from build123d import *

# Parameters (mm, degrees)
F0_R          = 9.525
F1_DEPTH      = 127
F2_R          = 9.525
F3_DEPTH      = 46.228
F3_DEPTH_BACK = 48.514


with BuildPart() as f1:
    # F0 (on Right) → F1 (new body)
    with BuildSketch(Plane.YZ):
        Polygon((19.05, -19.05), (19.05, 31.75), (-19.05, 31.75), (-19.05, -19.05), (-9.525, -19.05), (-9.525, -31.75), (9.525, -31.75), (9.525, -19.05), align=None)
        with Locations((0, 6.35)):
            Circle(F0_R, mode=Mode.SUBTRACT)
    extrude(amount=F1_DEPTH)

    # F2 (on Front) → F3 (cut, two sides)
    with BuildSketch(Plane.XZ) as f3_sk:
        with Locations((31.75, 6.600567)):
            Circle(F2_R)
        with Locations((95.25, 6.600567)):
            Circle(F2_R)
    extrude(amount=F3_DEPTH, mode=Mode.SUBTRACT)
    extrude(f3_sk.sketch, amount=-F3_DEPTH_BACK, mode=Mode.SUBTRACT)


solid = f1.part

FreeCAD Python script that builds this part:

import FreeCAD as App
import Part
import Sketcher
Q = App.Units.Quantity


def add_polygon(sketch, points):
    """Adds a closed chain of lines whose ends are joined by coincident constraints."""
    first, n = sketch.GeometryCount, len(points)
    for a, b in zip(points, points[1:] + points[:1]):
        sketch.addGeometry(Part.LineSegment(App.Vector(*a, 0), App.Vector(*b, 0)), False)
    for i in range(n):
        sketch.addConstraint(Sketcher.Constraint("Coincident", first + i, 2, first + (i + 1) % n, 1))

doc = App.newDocument("Part")
params = doc.addObject("Spreadsheet::Sheet", "Params")
for row, (alias, value) in enumerate([
    ("sketch1_diameter", "0.75 in"),
    ("sketch1_height", "2 in"),
    ("sketch1_width", "1.5 in"),
    ("sketch1_height2", "0.5 in"),
    ("sketch1_width2", "0.75 in"),
    ("pad1_length", "5 in"),
    ("sketch2_diameter", "0.75 in"),
], start=1):
    params.set(f"A{row}", alias)
    params.set(f"B{row}", "=" + value)
    params.setAlias(f"B{row}", alias)

body = doc.addObject("PartDesign::Body", "Body")

sketch1 = body.newObject("Sketcher::SketchObject", "Sketch")
sketch1.AttachmentSupport = (doc.getObject("YZ_Plane"), [""])
sketch1.MapMode = "FlatFace"
add_polygon(sketch1, [(19, -19), (19, 32), (-19, 32), (-19, -19), (-10, -19), (-10, -32), (10, -32), (10, -19)])
sketch1.addGeometry(Part.Circle(App.Vector(0, 6, 0), App.Vector(0, 0, 1), 10), False)
sketch1.addConstraint(Sketcher.Constraint("Vertical", 0))
sketch1.addConstraint(Sketcher.Constraint("Horizontal", 1))
sketch1.addConstraint(Sketcher.Constraint("Vertical", 2))
sketch1.addConstraint(Sketcher.Constraint("Horizontal", 3))
sketch1.addConstraint(Sketcher.Constraint("Vertical", 4))
sketch1.addConstraint(Sketcher.Constraint("Horizontal", 5))
sketch1.addConstraint(Sketcher.Constraint("Vertical", 6))
sketch1.addConstraint(Sketcher.Constraint("Horizontal", 7))
sketch1.addConstraint(Sketcher.Constraint("Symmetric", 3, 2, 6, 2, -2))
sketch1.addConstraint(Sketcher.Constraint("PointOnObject", 8, 3, -2))
sketch1.addConstraint(Sketcher.Constraint("Equal", 3, 7))
sketch1.addConstraint(Sketcher.Constraint("Diameter", 8, Q("0.75 in")))
sketch1.addConstraint(Sketcher.Constraint("DistanceY", 0, 1, 0, 2, Q("2 in")))
sketch1.addConstraint(Sketcher.Constraint("DistanceX", 1, 2, 1, 1, Q("1.5 in")))
sketch1.addConstraint(Sketcher.Constraint("DistanceY", 4, 2, 4, 1, Q("0.5 in")))
sketch1.addConstraint(Sketcher.Constraint("DistanceY", 8, 3, 0, 2, Q("1 in")))
sketch1.addConstraint(Sketcher.Constraint("DistanceX", 5, 1, 5, 2, Q("0.75 in")))
sketch1.addConstraint(Sketcher.Constraint("DistanceY", -1, 1, 8, 3, Q("0.25 in")))
sketch1.setExpression("Constraints[19]", "Params.sketch1_diameter")
sketch1.setExpression("Constraints[20]", "Params.sketch1_height")
sketch1.setExpression("Constraints[21]", "Params.sketch1_width")
sketch1.setExpression("Constraints[22]", "Params.sketch1_height2")
sketch1.setExpression("Constraints[24]", "Params.sketch1_width2")
pad1 = body.newObject("PartDesign::Pad", "Pad")
pad1.Profile = sketch1
pad1.setExpression("Length", "Params.pad1_length")

sketch2 = body.newObject("Sketcher::SketchObject", "Sketch001")
sketch2.AttachmentSupport = (doc.getObject("XZ_Plane"), [""])
sketch2.MapMode = "FlatFace"
sketch2.addGeometry(Part.Circle(App.Vector(32, 7, 0), App.Vector(0, 0, 1), 10), False)
sketch2.addGeometry(Part.Circle(App.Vector(95, 7, 0), App.Vector(0, 0, 1), 10), False)
sketch2.addConstraint(Sketcher.Constraint("Equal", 0, 1))
sketch2.addConstraint(Sketcher.Constraint("Horizontal", 0, 3, 1, 3))
sketch2.addConstraint(Sketcher.Constraint("Diameter", 0, Q("0.75 in")))
sketch2.addConstraint(Sketcher.Constraint("DistanceX", 0, 3, 1, 3, Q("2.5 in")))
sketch2.addConstraint(Sketcher.Constraint("DistanceX", -1, 1, 0, 3, Q("1.25 in")))
sketch2.addConstraint(Sketcher.Constraint("DistanceY", -1, 1, 0, 3, 6.600567))
sketch2.setExpression("Constraints[2]", "Params.sketch2_diameter")
pocket1 = body.newObject("PartDesign::Pocket", "Pocket")
pocket1.Profile = sketch2
pocket1.Type = "ThroughAll"
pocket1.Midplane = True

doc.recompute()
